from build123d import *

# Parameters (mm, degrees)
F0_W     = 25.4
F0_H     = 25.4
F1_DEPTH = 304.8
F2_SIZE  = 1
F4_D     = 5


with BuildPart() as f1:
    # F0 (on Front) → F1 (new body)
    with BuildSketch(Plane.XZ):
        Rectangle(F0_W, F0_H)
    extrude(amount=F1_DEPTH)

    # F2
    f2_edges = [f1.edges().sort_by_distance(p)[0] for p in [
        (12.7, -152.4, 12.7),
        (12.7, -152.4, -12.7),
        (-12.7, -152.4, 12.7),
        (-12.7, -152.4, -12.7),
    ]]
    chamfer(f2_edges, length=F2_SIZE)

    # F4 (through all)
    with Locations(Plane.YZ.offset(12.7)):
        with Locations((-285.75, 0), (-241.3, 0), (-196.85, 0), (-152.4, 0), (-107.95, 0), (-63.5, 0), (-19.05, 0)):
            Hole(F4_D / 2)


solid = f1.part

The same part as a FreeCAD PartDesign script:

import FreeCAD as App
import Part
import Sketcher
Q = App.Units.Quantity


def edges_at(feature, points):
    """Names of the edges that pass closest to the given points."""
    edges = feature.Shape.Edges
    near = lambda p: min(range(len(edges)), key=lambda i: edges[i].distToShape(Part.Vertex(*p))[0])
    return sorted({f"Edge{near(p) + 1}" for p in points})


def add_polygon(sketch, points):
    """Adds a closed chain of lines whose ends are joined by coincident constraints."""
    first, n = sketch.GeometryCount, len(points)
    for a, b in zip(points, points[1:] + points[:1]):
        sketch.addGeometry(Part.LineSegment(App.Vector(*a, 0), App.Vector(*b, 0)), False)
    for i in range(n):
        sketch.addConstraint(Sketcher.Constraint("Coincident", first + i, 2, first + (i + 1) % n, 1))

doc = App.newDocument("Part")
body = doc.addObject("PartDesign::Body", "Body")

sketch1 = body.newObject("Sketcher::SketchObject", "Sketch")
sketch1.AttachmentSupport = (doc.getObject("XZ_Plane"), [""])
sketch1.MapMode = "FlatFace"
add_polygon(sketch1, [(-13, 13), (-13, -13), (13, -13), (13, 13)])
sketch1.addConstraint([
    Sketcher.Constraint("Vertical", 0),
    Sketcher.Constraint("Horizontal", 1),
    Sketcher.Constraint("Vertical", 2),
    Sketcher.Constraint("Horizontal", 3),
    Sketcher.Constraint("Symmetric", 0, 2, 2, 2, -1, 1),
    Sketcher.Constraint("Equal", 3, 0),
    Sketcher.Constraint("DistanceX", 1, 1, 1, 2, Q("25.4 mm")),
])
pad1 = body.newObject("PartDesign::Pad", "Pad")
pad1.Profile = sketch1
pad1.Length = 304.8
doc.recompute()

chamfer = body.newObject("PartDesign::Chamfer", "Chamfer")
chamfer.Base = (pad1, edges_at(pad1, [
    (12.7, -152.4, 12.7),
    (12.7, -152.4, -12.7),
    (-12.7, -152.4, 12.7),
    (-12.7, -152.4, -12.7),
]))
chamfer.Size = 1

sketch2 = body.newObject("Sketcher::SketchObject", "Sketch001")
sketch2.AttachmentSupport = (doc.getObject("YZ_Plane"), [""])
sketch2.MapMode = "FlatFace"
sketch2.AttachmentOffset = App.Placement(App.Vector(0, 0, 12.7), App.Rotation())
sketch2.addGeometry([
    Part.Circle(App.Vector(-285.8, 0, 0), App.Vector(0, 0, 1), 2.5),
    Part.Circle(App.Vector(-241.3, 0, 0), App.Vector(0, 0, 1), 2.5),
    Part.Circle(App.Vector(-196.8, 0, 0), App.Vector(0, 0, 1), 2.5),
    Part.Circle(App.Vector(-152.4, 0, 0), App.Vector(0, 0, 1), 2.5),
    Part.Circle(App.Vector(-108, 0, 0), App.Vector(0, 0, 1), 2.5),
    Part.Circle(App.Vector(-63.5, 0, 0), App.Vector(0, 0, 1), 2.5),
    Part.Circle(App.Vector(-19.1, 0, 0), App.Vector(0, 0, 1), 2.5),
], False)
sketch2.addConstraint([
    Sketcher.Constraint("Equal", 0, 1),
    Sketcher.Constraint("Equal", 1, 2),
    Sketcher.Constraint("Equal", 2, 3),
    Sketcher.Constraint("Equal", 3, 4),
    Sketcher.Constraint("Equal", 4, 5),
    Sketcher.Constraint("Equal", 5, 6),
    Sketcher.Constraint("PointOnObject", 0, 3, -1),
    Sketcher.Constraint("PointOnObject", 1, 3, -1),
    Sketcher.Constraint("PointOnObject", 2, 3, -1),
    Sketcher.Constraint("PointOnObject", 3, 3, -1),
    Sketcher.Constraint("PointOnObject", 4, 3, -1),
    Sketcher.Constraint("PointOnObject", 5, 3, -1),
    Sketcher.Constraint("PointOnObject", 6, 3, -1),
    Sketcher.Constraint("Diameter", 0, Q("5 mm")),
    Sketcher.Constraint("DistanceX", 1, 3, -1, 1, Q("241.3 mm")),
    Sketcher.Constraint("DistanceX", 3, 3, -1, 1, Q("152.4 mm")),
    Sketcher.Constraint("DistanceX", 5, 3, -1, 1, Q("63.5 mm")),
    Sketcher.Constraint("DistanceX", 0, 3, 2, 3, Q("88.9 mm")),
    Sketcher.Constraint("DistanceX", 2, 3, 4, 3, Q("88.9 mm")),
    Sketcher.Constraint("DistanceX", 4, 3, 6, 3, Q("88.9 mm")),
    Sketcher.Constraint("DistanceX", 0, 3, -1, 1, Q("285.75 mm")),
])
doc.recompute()
hole = body.newObject("PartDesign::Hole", "Hole")
hole.Profile = sketch2
hole.ThreadType = "None"
hole.Diameter = 5
hole.DepthType = "ThroughAll"

doc.recompute()
